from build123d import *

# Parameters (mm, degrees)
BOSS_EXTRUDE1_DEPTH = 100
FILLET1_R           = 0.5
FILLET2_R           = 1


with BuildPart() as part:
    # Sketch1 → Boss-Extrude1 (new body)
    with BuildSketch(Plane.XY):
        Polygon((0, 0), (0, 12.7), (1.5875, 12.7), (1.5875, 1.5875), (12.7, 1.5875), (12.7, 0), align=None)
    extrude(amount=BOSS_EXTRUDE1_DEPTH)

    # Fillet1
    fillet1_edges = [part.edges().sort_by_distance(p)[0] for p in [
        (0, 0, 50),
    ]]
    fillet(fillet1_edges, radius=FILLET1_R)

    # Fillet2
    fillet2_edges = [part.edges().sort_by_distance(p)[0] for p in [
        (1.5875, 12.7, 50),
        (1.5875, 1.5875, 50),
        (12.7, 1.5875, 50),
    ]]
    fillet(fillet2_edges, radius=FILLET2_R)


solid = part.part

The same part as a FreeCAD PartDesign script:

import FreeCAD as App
import Part
import Sketcher
Q = App.Units.Quantity


def edges_at(feature, points):
    """Names of the edges that pass closest to the given points."""
    edges = feature.Shape.Edges
    near = lambda p: min(range(len(edges)), key=lambda i: edges[i].distToShape(Part.Vertex(*p))[0])
    return sorted({f"Edge{near(p) + 1}" for p in points})


def add_polygon(sketch, points):
    """Adds a closed chain of lines whose ends are joined by coincident constraints."""
    first, n = sketch.GeometryCount, len(points)
    for a, b in zip(points, points[1:] + points[:1]):
        sketch.addGeometry(Part.LineSegment(App.Vector(*a, 0), App.Vector(*b, 0)), False)
    for i in range(n):
        sketch.addConstraint(Sketcher.Constraint("Coincident", first + i, 2, first + (i + 1) % n, 1))

doc = App.newDocument("Part")
body = doc.addObject("PartDesign::Body", "Body")

sketch1 = doc.addObject("Sketcher::SketchObject", "Sketch")
body.addObject(sketch1)
sketch1.AttachmentSupport = (doc.XY_Plane, [""])
sketch1.MapMode = "FlatFace"
add_polygon(sketch1, [(0, 12.7), (0, 0), (12.7, 0), (12.7, 1.6), (1.6, 1.6), (1.6, 12.7)])
sketch1.addConstraint([
    Sketcher.Constraint("Vertical", 0),
    Sketcher.Constraint("Horizontal", 1),
    Sketcher.Constraint("Vertical", 2),
    Sketcher.Constraint("Horizontal", 3),
    Sketcher.Constraint("Vertical", 4),
    Sketcher.Constraint("Horizontal", 5),
    Sketcher.Constraint("Coincident", 0, 2, -1, 1),
    Sketcher.Constraint("Equal", 1, 0),
    Sketcher.Constraint("Equal", 5, 2),
    Sketcher.Constraint("DistanceX", 1, 1, 1, 2, Q("12.7 mm")),
    Sketcher.Constraint("DistanceX", 3, 2, 3, 1, Q("11.1125 mm")),
])
pad1 = doc.addObject("PartDesign::Pad", "Pad")
body.addObject(pad1)
pad1.Profile = sketch1
pad1.Length = 100
doc.recompute()

fillet = doc.addObject("PartDesign::Fillet", "Fillet")
body.addObject(fillet)
fillet.Base = (pad1, edges_at(pad1, [(0, 0, 50)]))
fillet.Radius = 0.5
doc.recompute()

fillet2 = doc.addObject("PartDesign::Fillet", "Fillet001")
body.addObject(fillet2)
fillet2.Base = (fillet, edges_at(fillet, [(1.587, 12.7, 50), (1.587, 1.587, 50), (12.7, 1.587, 50)]))
fillet2.Radius = 1

doc.recompute()
